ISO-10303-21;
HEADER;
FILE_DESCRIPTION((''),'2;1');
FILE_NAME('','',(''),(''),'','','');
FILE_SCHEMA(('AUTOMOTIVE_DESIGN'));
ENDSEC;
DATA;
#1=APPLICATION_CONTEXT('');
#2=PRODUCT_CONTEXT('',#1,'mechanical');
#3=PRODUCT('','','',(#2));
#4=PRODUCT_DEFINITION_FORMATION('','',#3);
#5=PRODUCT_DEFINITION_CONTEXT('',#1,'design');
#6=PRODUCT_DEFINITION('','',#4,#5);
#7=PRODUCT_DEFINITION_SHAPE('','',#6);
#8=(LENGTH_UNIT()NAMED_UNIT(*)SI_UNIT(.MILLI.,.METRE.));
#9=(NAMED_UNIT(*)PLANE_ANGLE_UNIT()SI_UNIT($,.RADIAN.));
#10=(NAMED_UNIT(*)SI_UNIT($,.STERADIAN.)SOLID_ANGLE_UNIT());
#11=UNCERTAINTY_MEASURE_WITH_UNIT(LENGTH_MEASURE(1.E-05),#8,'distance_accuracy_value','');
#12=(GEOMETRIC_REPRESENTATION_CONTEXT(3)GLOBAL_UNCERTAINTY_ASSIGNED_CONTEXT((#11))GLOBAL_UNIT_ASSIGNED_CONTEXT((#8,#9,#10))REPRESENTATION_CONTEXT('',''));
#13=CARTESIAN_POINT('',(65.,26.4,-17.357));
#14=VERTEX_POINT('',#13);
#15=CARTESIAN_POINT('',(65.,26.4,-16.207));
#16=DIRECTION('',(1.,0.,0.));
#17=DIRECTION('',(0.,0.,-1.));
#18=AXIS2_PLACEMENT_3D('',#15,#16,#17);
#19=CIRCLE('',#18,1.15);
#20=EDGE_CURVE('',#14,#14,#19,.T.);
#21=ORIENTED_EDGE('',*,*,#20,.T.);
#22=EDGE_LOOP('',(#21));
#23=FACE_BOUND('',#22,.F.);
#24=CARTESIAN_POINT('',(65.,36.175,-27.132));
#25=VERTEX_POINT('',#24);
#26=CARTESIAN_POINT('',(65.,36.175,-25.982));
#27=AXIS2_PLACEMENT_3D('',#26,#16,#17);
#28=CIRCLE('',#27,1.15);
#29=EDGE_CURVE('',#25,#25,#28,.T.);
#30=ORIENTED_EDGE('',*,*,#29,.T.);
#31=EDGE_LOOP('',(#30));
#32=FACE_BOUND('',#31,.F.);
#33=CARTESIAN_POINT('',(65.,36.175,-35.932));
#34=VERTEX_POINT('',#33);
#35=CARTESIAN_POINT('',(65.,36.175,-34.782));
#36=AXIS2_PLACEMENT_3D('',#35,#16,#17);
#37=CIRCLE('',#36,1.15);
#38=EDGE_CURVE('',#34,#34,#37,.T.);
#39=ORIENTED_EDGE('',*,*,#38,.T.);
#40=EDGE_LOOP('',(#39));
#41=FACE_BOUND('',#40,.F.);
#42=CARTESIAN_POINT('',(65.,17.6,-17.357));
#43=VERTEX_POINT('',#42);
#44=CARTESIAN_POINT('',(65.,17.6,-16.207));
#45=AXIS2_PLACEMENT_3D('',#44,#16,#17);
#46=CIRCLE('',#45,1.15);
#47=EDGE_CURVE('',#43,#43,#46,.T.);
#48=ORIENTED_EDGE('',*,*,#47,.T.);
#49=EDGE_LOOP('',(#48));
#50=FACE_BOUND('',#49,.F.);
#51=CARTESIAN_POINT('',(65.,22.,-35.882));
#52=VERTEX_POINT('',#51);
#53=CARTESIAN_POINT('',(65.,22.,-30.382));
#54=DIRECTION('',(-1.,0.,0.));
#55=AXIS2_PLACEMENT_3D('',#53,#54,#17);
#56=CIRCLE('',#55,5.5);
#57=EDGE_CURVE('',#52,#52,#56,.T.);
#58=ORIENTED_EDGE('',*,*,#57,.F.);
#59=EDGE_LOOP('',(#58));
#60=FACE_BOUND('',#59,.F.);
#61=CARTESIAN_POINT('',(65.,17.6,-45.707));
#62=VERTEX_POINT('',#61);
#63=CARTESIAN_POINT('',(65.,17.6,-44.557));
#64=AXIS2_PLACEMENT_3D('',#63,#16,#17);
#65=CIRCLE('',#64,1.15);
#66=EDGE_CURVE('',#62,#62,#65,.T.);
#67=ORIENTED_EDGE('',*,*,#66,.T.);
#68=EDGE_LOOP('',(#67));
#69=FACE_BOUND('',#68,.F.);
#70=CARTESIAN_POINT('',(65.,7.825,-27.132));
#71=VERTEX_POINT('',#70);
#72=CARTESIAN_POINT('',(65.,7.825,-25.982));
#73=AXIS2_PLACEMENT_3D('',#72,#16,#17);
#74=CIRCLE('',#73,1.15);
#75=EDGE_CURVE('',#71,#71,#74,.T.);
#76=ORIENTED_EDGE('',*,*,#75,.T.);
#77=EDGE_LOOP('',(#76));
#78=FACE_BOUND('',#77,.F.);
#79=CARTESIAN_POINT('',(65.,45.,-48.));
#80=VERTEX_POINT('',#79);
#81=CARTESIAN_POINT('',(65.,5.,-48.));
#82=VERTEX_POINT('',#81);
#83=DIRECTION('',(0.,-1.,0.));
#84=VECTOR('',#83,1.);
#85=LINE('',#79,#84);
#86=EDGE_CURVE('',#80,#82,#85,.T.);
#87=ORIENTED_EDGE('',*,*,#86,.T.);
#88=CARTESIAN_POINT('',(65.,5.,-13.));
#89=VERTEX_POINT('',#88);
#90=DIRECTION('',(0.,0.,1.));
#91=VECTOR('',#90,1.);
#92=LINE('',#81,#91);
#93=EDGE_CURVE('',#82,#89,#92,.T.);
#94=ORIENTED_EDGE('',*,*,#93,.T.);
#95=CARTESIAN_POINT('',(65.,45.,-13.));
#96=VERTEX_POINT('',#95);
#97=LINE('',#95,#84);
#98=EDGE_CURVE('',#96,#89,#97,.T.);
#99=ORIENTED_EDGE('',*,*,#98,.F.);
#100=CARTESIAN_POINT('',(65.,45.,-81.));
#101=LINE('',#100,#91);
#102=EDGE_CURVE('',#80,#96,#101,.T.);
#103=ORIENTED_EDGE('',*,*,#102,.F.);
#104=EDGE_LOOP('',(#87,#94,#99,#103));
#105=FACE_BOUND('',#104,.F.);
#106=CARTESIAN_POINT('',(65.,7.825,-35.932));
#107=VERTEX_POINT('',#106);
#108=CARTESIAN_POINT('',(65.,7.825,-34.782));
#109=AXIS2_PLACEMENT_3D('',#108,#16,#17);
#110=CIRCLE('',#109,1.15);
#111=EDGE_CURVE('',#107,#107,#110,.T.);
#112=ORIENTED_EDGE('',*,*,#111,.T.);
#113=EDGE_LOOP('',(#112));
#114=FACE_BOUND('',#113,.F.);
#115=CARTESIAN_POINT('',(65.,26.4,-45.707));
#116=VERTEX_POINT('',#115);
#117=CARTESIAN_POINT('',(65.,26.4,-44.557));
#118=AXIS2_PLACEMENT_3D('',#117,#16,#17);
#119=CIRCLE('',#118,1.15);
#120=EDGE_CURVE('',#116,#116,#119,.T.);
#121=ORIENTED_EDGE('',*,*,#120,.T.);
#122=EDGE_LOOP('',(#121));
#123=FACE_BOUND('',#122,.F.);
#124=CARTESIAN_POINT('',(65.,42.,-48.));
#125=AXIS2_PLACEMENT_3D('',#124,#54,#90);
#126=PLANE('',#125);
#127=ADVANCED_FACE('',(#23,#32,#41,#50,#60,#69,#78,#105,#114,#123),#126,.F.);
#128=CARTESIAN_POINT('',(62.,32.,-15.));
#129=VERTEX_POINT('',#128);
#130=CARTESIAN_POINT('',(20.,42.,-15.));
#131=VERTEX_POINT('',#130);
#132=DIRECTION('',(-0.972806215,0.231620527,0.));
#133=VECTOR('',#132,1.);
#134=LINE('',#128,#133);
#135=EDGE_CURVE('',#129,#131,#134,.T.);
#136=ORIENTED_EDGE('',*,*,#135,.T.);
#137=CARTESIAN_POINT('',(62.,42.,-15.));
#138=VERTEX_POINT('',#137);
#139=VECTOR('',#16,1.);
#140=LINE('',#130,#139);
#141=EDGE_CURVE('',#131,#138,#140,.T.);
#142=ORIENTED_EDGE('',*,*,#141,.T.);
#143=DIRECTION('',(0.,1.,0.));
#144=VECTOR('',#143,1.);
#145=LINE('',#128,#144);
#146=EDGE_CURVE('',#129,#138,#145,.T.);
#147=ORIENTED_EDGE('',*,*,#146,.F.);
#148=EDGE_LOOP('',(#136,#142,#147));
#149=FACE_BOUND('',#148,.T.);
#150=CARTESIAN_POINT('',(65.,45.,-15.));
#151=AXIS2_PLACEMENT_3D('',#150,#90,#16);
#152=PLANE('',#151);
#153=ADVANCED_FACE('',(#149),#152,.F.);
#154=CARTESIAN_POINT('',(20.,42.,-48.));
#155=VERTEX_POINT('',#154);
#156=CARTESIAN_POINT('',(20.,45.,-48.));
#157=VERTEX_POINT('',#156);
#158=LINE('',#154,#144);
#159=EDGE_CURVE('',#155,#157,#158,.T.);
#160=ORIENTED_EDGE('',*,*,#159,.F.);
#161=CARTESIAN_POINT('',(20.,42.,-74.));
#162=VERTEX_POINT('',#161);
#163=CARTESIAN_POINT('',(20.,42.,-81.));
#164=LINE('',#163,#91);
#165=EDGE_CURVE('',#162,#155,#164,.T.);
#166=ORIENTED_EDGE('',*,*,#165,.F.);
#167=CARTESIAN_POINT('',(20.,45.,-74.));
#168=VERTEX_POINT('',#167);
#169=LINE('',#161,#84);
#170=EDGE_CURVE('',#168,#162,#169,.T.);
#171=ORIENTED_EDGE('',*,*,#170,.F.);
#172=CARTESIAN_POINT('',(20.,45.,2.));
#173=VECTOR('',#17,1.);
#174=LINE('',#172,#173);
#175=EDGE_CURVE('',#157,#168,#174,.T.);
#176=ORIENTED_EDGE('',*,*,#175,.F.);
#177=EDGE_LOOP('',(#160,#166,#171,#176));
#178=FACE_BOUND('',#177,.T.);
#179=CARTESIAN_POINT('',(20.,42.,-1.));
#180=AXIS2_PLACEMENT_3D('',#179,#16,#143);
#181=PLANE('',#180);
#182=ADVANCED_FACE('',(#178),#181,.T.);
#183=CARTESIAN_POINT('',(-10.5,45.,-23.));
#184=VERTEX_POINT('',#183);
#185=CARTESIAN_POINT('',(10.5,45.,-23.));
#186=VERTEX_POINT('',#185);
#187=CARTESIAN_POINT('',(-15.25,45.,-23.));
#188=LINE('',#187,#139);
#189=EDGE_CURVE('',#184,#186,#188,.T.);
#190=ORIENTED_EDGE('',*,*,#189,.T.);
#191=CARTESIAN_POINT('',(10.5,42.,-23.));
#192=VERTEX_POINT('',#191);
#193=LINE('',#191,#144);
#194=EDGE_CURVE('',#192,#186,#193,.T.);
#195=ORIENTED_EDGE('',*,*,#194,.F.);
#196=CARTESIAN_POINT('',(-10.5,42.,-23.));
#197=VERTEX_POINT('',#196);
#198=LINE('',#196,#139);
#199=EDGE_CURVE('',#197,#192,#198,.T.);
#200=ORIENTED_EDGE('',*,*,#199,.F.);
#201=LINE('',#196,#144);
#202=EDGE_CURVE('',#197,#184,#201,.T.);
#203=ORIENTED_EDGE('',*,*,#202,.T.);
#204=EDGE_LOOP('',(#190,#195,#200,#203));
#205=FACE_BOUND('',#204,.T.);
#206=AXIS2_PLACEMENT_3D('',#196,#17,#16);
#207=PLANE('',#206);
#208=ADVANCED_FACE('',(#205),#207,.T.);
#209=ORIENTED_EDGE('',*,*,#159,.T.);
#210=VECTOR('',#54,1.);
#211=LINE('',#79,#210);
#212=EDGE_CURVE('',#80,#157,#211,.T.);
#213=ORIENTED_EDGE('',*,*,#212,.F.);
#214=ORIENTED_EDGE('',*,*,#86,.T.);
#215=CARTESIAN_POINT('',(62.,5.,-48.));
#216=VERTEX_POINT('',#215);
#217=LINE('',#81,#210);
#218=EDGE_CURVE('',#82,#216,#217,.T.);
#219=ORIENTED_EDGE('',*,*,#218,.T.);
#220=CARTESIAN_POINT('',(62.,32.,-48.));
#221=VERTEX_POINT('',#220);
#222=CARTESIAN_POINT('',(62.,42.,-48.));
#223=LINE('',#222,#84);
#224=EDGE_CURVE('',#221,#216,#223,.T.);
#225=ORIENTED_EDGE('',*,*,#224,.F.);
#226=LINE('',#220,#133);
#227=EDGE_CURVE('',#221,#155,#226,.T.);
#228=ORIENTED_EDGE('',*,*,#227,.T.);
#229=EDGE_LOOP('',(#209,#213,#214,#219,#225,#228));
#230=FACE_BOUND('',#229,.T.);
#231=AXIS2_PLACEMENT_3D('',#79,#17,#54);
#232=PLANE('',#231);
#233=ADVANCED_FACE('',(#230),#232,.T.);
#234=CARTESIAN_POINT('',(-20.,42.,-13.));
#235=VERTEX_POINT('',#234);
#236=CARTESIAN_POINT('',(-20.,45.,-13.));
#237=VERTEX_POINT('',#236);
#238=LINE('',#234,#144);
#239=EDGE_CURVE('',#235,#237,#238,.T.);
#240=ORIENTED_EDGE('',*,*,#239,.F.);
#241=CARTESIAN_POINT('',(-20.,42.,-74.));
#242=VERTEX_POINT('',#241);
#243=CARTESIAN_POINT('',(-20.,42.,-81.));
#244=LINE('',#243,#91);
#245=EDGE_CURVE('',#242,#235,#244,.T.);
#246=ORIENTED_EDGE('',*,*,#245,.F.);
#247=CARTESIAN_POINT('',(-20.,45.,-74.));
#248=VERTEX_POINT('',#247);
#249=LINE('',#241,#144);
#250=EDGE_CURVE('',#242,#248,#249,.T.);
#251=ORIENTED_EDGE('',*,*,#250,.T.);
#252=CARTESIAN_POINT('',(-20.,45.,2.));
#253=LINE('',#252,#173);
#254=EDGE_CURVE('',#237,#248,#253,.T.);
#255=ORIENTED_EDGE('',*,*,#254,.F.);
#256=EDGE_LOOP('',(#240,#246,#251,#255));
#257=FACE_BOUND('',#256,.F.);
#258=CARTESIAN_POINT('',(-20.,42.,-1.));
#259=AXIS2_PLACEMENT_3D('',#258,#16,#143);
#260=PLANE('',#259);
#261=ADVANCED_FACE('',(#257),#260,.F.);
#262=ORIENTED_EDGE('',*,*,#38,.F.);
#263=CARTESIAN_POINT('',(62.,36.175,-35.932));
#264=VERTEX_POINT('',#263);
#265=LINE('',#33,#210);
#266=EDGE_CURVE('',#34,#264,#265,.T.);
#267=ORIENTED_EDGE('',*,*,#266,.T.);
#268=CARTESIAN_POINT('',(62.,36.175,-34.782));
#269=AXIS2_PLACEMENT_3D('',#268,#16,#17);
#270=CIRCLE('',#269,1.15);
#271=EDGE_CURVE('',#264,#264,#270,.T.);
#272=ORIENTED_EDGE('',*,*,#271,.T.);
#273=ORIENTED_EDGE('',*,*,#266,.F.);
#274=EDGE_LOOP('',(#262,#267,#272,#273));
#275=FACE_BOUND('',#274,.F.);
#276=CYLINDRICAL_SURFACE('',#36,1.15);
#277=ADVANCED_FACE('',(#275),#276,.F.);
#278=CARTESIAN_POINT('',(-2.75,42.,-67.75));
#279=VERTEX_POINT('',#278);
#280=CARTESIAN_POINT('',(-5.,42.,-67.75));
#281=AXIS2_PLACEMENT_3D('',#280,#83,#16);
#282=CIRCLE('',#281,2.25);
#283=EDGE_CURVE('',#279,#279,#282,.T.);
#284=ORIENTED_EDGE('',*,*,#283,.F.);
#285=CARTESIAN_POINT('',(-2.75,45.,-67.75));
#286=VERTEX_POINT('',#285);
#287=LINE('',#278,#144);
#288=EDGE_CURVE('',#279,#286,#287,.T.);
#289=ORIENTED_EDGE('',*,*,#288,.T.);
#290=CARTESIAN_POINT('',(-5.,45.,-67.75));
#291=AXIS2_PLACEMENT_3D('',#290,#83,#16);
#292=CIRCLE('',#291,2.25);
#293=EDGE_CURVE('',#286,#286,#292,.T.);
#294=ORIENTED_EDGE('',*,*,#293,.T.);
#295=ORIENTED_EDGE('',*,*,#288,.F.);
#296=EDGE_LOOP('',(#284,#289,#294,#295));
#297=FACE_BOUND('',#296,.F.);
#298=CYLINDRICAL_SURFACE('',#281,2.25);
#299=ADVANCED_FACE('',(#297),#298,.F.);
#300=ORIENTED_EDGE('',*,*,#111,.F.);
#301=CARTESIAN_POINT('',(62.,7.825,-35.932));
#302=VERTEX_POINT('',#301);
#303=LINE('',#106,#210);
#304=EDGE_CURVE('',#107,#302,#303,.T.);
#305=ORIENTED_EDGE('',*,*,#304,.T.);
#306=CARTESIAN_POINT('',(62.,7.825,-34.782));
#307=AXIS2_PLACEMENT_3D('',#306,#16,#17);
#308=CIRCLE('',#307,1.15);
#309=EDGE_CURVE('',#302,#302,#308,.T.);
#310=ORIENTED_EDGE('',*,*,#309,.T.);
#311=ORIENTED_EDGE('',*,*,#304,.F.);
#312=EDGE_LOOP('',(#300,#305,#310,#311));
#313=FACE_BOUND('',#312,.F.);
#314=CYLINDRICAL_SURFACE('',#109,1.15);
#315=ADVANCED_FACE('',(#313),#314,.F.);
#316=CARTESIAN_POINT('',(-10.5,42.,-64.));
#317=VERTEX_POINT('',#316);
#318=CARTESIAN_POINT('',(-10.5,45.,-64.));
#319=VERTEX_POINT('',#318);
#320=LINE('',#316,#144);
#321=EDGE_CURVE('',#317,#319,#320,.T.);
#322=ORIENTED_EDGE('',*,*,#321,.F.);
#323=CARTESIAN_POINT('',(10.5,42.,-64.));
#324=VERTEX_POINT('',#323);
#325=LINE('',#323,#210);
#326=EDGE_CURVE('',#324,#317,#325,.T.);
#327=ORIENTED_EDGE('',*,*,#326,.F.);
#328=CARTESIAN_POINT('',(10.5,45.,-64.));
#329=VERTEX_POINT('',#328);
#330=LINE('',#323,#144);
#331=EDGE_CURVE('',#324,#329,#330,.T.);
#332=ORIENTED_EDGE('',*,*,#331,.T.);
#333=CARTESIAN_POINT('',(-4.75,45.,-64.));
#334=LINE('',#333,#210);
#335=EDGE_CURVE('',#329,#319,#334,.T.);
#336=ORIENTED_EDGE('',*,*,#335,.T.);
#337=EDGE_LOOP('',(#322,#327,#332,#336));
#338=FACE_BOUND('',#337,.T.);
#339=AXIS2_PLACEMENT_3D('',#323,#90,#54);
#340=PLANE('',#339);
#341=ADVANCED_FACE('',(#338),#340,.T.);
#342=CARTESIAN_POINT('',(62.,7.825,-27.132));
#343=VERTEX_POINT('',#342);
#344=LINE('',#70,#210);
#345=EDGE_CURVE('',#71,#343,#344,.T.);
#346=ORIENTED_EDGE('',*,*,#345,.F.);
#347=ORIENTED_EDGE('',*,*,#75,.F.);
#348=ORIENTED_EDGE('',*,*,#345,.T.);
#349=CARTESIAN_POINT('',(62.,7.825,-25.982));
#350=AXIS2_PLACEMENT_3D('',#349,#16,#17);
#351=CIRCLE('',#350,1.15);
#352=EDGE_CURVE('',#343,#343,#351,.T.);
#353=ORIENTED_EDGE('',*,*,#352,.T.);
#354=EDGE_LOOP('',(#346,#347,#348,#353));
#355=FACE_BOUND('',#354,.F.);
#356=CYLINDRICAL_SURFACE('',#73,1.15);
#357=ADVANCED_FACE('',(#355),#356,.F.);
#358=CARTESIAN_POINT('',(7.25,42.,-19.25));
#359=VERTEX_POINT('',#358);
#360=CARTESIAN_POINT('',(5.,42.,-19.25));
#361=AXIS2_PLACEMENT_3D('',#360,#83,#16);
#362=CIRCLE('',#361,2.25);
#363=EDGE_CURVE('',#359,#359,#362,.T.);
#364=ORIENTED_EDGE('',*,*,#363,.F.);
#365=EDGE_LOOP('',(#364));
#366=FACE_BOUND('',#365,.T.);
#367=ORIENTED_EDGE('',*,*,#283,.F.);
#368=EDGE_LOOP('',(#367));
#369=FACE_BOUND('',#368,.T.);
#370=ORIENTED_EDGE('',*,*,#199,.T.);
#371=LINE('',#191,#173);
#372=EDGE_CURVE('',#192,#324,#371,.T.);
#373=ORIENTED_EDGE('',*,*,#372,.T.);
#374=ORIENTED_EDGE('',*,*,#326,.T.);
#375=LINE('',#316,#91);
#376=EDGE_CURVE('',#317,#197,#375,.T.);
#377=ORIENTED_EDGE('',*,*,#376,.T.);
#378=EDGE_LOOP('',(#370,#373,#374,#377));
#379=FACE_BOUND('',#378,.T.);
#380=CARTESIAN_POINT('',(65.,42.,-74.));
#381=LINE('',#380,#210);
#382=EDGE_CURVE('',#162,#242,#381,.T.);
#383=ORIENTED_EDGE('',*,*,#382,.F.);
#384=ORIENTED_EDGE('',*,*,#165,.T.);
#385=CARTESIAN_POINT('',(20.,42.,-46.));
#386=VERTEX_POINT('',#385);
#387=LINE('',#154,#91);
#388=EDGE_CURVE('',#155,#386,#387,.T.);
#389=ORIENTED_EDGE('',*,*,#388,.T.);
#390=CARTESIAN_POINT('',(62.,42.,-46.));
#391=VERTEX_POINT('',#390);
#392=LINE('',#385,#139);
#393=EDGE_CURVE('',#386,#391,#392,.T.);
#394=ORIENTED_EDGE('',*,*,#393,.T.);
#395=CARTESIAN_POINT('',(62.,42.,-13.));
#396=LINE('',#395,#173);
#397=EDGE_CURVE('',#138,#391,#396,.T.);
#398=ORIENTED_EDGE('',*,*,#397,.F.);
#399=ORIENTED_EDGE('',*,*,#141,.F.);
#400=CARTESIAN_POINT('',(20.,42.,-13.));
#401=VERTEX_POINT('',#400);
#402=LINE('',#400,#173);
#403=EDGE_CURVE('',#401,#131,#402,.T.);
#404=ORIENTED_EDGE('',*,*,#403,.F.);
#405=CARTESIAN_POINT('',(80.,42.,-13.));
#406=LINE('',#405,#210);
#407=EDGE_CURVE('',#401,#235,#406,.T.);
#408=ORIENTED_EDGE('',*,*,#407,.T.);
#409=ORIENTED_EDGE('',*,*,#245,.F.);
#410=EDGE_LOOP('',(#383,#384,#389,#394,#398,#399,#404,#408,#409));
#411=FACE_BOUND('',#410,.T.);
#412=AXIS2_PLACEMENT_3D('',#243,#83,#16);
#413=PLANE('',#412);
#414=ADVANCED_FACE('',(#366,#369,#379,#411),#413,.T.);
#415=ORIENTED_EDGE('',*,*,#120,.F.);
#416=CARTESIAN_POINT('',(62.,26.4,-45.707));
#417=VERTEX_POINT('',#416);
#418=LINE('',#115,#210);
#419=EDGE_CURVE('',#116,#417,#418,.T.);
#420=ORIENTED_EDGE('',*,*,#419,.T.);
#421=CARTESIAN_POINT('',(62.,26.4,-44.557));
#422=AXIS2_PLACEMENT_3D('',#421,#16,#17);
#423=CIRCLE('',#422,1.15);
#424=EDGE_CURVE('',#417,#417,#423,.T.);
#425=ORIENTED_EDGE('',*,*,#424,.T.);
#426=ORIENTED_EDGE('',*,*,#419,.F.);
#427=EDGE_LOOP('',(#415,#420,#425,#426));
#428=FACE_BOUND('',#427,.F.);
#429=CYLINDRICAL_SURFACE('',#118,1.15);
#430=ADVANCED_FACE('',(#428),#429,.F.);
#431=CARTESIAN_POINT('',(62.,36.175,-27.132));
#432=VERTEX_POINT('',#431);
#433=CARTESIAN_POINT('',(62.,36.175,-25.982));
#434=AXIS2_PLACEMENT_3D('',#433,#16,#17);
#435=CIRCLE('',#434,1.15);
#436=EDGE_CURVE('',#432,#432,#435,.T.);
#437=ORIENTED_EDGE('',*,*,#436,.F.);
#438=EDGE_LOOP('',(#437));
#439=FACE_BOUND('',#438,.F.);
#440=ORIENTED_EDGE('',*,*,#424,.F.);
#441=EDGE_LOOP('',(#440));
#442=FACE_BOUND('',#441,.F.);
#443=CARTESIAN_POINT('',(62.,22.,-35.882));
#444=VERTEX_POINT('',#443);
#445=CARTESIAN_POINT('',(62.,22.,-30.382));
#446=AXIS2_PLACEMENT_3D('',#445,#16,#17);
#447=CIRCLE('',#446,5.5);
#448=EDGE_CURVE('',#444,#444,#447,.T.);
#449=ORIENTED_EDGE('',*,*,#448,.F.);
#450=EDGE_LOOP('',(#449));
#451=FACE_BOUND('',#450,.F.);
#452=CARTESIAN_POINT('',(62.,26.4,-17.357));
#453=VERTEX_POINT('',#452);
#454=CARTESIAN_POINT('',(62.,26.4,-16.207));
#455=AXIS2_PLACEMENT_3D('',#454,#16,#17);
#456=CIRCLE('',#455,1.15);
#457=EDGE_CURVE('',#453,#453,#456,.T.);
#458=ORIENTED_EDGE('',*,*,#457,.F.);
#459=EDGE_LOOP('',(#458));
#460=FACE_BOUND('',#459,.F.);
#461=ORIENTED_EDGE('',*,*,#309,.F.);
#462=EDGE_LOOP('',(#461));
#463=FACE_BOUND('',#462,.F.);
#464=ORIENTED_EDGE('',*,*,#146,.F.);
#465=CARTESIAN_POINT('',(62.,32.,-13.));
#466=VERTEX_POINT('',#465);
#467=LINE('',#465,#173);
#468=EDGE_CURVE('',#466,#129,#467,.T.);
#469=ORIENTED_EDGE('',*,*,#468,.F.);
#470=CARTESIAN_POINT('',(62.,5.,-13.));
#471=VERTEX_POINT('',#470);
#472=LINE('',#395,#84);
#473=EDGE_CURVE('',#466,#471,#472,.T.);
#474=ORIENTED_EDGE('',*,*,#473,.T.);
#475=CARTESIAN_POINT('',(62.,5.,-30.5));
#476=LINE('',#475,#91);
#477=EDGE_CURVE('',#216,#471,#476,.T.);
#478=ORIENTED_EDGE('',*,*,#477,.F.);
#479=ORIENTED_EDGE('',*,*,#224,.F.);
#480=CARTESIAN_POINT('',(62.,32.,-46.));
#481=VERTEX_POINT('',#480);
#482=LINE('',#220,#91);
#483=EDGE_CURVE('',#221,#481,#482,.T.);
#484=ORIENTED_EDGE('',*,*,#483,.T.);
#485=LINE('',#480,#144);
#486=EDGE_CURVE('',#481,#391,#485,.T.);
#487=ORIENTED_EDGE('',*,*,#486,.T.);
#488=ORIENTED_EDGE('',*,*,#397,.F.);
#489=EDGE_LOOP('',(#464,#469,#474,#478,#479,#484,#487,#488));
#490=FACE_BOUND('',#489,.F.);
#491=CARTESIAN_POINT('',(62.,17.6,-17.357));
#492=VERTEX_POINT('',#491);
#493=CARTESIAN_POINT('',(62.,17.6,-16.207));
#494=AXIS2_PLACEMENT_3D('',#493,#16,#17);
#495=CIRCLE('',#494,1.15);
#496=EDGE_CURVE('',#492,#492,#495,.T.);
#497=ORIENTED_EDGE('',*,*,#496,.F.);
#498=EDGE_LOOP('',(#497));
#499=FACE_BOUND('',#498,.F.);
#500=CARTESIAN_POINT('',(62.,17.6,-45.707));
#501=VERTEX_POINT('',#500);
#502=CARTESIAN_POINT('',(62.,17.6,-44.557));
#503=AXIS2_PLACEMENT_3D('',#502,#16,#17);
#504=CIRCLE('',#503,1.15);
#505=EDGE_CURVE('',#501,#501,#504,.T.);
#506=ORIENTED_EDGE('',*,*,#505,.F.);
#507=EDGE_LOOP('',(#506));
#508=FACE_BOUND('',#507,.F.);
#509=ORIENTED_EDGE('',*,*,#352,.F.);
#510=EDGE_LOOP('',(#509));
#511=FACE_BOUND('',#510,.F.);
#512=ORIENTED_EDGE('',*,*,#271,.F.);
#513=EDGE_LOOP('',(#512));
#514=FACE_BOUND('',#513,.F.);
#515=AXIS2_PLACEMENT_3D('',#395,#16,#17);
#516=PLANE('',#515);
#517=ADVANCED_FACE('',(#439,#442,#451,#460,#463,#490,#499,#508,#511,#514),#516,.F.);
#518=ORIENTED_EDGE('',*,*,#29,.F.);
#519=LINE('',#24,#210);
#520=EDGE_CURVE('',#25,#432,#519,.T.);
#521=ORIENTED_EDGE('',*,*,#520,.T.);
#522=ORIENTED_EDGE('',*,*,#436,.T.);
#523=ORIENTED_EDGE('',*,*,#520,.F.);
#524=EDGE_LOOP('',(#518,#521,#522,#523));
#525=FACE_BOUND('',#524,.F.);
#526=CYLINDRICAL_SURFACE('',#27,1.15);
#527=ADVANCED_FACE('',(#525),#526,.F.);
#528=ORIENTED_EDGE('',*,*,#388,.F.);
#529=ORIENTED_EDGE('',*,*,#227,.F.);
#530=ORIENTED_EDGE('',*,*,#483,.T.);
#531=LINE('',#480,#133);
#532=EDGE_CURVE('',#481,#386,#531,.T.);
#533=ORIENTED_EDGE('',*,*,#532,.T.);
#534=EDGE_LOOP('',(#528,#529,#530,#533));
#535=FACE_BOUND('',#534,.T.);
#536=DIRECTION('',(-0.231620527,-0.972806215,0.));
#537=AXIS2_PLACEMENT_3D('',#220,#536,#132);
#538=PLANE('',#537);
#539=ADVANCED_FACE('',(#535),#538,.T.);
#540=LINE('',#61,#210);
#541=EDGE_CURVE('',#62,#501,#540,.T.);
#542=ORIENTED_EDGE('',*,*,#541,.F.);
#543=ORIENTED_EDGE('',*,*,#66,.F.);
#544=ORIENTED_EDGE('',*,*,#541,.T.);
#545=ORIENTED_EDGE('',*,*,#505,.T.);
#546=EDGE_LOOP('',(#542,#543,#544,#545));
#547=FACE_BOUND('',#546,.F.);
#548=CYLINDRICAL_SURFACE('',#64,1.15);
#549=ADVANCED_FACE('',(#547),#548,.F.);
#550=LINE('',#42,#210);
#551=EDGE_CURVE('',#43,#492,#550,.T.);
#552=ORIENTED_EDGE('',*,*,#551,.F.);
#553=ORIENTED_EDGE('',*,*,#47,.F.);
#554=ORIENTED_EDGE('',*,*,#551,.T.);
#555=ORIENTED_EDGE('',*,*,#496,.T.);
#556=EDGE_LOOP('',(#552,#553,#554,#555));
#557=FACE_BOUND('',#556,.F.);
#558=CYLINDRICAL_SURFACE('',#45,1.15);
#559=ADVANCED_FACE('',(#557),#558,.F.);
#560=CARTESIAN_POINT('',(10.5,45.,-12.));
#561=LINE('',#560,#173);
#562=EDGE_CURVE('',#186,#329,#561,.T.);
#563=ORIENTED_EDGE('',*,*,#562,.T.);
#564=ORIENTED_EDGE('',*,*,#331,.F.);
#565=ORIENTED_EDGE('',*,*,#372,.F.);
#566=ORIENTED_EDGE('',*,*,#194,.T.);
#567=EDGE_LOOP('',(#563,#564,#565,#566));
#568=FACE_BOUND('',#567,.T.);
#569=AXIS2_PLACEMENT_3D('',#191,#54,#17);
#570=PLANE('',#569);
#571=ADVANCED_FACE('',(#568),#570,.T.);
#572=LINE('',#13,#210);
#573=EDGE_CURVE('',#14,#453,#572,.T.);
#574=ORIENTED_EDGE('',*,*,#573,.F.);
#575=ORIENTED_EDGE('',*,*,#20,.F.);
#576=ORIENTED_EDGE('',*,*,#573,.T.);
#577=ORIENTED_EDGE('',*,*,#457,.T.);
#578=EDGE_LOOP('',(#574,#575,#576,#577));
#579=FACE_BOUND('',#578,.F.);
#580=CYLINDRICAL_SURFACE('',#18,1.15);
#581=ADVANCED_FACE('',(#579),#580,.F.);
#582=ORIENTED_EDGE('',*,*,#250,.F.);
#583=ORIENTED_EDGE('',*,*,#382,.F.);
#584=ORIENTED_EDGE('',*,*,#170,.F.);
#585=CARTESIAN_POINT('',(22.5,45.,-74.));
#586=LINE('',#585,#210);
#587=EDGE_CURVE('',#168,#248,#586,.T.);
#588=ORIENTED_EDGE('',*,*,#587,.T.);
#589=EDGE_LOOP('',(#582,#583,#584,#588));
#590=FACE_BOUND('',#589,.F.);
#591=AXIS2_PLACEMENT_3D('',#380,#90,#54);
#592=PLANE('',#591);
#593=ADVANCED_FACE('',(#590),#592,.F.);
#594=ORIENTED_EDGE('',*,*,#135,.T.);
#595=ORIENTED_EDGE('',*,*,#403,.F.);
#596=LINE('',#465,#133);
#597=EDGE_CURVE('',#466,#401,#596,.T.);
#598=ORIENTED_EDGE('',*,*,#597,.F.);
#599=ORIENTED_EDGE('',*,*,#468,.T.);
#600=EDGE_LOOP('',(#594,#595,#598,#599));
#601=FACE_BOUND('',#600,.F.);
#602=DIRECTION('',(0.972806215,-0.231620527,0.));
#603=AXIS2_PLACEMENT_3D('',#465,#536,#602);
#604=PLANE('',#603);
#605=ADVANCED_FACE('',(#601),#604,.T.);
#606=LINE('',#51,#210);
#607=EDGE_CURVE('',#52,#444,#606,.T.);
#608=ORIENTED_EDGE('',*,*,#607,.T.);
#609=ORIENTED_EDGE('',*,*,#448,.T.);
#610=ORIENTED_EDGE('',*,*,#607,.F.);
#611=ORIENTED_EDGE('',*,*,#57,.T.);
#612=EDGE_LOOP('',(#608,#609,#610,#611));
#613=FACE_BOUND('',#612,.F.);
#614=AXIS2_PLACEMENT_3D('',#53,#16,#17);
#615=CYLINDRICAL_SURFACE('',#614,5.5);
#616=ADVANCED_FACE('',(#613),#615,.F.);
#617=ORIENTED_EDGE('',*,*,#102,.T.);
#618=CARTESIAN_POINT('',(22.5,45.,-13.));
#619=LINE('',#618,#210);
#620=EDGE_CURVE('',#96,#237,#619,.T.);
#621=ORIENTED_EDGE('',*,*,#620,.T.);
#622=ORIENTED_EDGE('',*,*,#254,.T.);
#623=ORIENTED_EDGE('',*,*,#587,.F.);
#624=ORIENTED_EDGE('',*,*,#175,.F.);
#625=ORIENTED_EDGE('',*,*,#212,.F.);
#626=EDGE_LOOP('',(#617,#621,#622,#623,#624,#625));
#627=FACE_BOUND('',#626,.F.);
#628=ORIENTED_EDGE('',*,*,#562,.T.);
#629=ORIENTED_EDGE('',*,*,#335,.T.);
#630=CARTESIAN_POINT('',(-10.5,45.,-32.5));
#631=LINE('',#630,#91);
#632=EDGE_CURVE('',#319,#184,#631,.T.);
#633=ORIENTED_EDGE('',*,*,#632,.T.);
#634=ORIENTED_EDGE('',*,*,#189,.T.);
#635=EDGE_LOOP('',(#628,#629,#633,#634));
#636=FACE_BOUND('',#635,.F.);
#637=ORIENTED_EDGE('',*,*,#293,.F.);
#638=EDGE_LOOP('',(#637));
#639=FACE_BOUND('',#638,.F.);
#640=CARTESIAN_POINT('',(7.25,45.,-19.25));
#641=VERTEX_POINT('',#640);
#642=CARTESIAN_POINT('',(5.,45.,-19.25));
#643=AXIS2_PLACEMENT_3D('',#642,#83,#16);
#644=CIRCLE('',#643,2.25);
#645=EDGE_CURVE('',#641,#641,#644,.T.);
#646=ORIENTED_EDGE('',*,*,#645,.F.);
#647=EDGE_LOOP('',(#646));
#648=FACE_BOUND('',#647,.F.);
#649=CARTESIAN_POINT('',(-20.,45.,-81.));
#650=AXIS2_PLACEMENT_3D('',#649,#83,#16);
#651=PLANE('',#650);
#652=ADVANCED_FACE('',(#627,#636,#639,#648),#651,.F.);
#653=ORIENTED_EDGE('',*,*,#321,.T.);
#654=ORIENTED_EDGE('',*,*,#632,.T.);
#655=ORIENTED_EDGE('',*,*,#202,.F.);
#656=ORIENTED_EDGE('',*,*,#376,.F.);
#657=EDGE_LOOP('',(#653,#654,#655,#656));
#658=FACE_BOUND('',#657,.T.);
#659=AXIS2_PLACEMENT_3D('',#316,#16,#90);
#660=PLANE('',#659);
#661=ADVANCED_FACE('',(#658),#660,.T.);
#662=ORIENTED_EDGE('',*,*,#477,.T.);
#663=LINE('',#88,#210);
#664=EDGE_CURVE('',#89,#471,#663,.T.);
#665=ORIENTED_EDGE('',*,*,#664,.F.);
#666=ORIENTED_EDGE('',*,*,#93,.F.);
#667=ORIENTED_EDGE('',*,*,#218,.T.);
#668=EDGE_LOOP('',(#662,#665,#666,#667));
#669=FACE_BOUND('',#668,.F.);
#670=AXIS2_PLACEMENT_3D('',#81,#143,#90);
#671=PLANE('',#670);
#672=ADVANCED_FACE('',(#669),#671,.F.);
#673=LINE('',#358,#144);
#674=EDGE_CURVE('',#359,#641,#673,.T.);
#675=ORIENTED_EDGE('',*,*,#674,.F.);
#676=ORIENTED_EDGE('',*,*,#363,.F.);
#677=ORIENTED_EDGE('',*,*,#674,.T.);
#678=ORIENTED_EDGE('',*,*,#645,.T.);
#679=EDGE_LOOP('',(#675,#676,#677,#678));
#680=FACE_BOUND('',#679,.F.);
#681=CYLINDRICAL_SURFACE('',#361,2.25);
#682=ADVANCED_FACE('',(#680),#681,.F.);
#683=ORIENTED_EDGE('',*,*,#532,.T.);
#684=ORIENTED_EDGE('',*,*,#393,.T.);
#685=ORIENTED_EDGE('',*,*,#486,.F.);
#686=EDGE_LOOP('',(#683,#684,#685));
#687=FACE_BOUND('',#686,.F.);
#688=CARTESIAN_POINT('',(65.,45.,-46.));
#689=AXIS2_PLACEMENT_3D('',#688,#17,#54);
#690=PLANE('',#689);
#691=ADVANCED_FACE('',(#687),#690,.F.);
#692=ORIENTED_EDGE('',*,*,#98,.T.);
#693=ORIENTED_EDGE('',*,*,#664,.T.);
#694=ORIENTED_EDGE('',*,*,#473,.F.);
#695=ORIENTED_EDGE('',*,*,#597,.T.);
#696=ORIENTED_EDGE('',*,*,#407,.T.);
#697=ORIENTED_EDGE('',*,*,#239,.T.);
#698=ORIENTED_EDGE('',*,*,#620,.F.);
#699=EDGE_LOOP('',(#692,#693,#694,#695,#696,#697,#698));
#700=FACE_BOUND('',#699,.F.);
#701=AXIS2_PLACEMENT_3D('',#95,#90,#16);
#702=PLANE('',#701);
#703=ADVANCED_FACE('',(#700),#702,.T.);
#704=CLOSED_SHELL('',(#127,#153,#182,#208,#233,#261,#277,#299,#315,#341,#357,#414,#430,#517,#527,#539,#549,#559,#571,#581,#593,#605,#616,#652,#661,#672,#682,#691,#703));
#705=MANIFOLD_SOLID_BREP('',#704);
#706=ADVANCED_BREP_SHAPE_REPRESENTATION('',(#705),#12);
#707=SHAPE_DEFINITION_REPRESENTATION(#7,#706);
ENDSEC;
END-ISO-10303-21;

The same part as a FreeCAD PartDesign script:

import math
import FreeCAD as App
import Part
import Sketcher
from FreeCAD import Vector
Q = App.Units.Quantity


def add_polygon(sketch, points):
    """Adds a closed chain of lines whose ends are joined by coincident constraints."""
    first, n = sketch.GeometryCount, len(points)
    for a, b in zip(points, points[1:] + points[:1]):
        sketch.addGeometry(Part.LineSegment(App.Vector(*a, 0), App.Vector(*b, 0)), False)
    for i in range(n):
        sketch.addConstraint(Sketcher.Constraint("Coincident", first + i, 2, first + (i + 1) % n, 1))

doc = App.newDocument("Part")
params = doc.addObject("Spreadsheet::Sheet", "Params")
for row, (alias, value) in enumerate([
    ("sketch1_width", "66 mm"),
    ("pad1_length", "2 mm"),
    ("sketch2_width", "62 mm"),
    ("pad2_length", "12 mm"),
    ("sketch3_width", "40 mm"),
    ("sketch3_height", "3 mm"),
    ("pad3_length", "12 mm"),
    ("sketch4_height", "3 mm"),
    ("sketch4_width", "40 mm"),
    ("pad4_length", "80 mm"),
    ("sketch5_width", "21 mm"),
    ("sketch5_height", "41 mm"),
    ("pocket1_length", "80 mm"),
    ("sketch6_diameter", "4.5 mm"),
    ("pocket2_length", "80 mm"),
    ("sketch7_width", "66 mm"),
    ("sketch7_height", "14 mm"),
    ("pocket3_length", "75 mm"),
    ("sketch8_width", "45 mm"),
    ("sketch8_height", "50 mm"),
    ("pad5_length", "3 mm"),
    ("sketch9_height", "15 mm"),
    ("sketch9_height2", "7 mm"),
    ("sketch9_width", "85 mm"),
    ("pocket4_length", "10 mm"),
    ("sketch10_width", "3 mm"),
    ("sketch10_height", "35 mm"),
    ("pad6_length", "100 mm"),
    ("sketch11_radius", "6.45 mm"),
    ("sketch11_radius2", "6.45 mm"),
    ("pocket5_length", "2.5 mm"),
    ("sketch12_width", "63 mm"),
    ("sketch12_height", "35 mm"),
    ("pocket6_length", "10 mm"),
    ("sketch13_width", "42 mm"),
    ("sketch13_height", "10 mm"),
    ("pad7_length", "2 mm"),
    ("sketch14_diameter", "2.3 mm"),
    ("pocket7_length", "10 mm"),
    ("sketch15_diameter", "2.3 mm"),
    ("pocket8_length", "10 mm"),
    ("sketch16_diameter", "2.3 mm"),
    ("pocket9_length", "10 mm"),
    ("sketch17_diameter", "11 mm"),
    ("pocket10_length", "10 mm"),
], start=1):
    params.set(f"A{row}", alias)
    params.set(f"B{row}", "=" + value)
    params.setAlias(f"B{row}", alias)

body = doc.addObject("PartDesign::Body", "Body")

sketch1 = body.newObject("Sketcher::SketchObject", "Sketch")
sketch1.AttachmentSupport = (doc.getObject("XY_Plane"), [""])
sketch1.MapMode = "FlatFace"
add_polygon(sketch1, [(33, 33), (-33, 33), (-33, -33), (33, -33)])
sketch1.addConstraint([
    Sketcher.Constraint("Horizontal", 0),
    Sketcher.Constraint("Vertical", 1),
    Sketcher.Constraint("Horizontal", 2),
    Sketcher.Constraint("Vertical", 3),
    Sketcher.Constraint("Symmetric", 0, 2, 2, 2, -1, 1),
    Sketcher.Constraint("Equal", 2, 1),
    Sketcher.Constraint("DistanceX", 0, 2, 0, 1, Q("66 mm")),
])
sketch1.setExpression("Constraints[10]", "Params.sketch1_width")
pad1 = body.newObject("PartDesign::Pad", "Pad")
pad1.Profile = sketch1
pad1.setExpression("Length", "Params.pad1_length")

sketch2 = body.newObject("Sketcher::SketchObject", "Sketch001")
sketch2.AttachmentSupport = (doc.getObject("XY_Plane"), [""])
sketch2.MapMode = "FlatFace"
add_polygon(sketch2, [(33, 33), (-33, 33), (-33, -33), (33, -33)])
add_polygon(sketch2, [(31, -31), (-31, -31), (-31, 31), (31, 31)])
sketch2.addConstraint([
    Sketcher.Constraint("Horizontal", 0),
    Sketcher.Constraint("Vertical", 1),
    Sketcher.Constraint("Horizontal", 2),
    Sketcher.Constraint("Vertical", 3),
    Sketcher.Constraint("Horizontal", 4),
    Sketcher.Constraint("Vertical", 5),
    Sketcher.Constraint("Horizontal", 6),
    Sketcher.Constraint("Vertical", 7),
    Sketcher.Constraint("Symmetric", 0, 2, 2, 2, -1, 1),
    Sketcher.Constraint("Symmetric", 4, 2, 6, 2, -1, 1),
    Sketcher.Constraint("Equal", 2, 1),
    Sketcher.Constraint("Equal", 6, 5),
    Sketcher.Constraint("DistanceX", 4, 2, 4, 1, Q("62 mm")),
    Sketcher.Constraint("DistanceX", 1, 2, 4, 2, Q("2 mm")),
])
sketch2.setExpression("Constraints[20]", "Params.sketch2_width")
pad2 = body.newObject("PartDesign::Pad", "Pad001")
pad2.Profile = sketch2
pad2.setExpression("Length", "Params.pad2_length")
pad2.Reversed = True

sketch3 = body.newObject("Sketcher::SketchObject", "Sketch002")
sketch3.AttachmentSupport = (doc.getObject("XZ_Plane"), [""])
sketch3.MapMode = "FlatFace"
sketch3.AttachmentOffset = App.Placement(Vector(0, 0, -33), App.Rotation())
add_polygon(sketch3, [(20, -1), (-20, -1), (-20, 2), (20, 2)])
sketch3.addConstraint([
    Sketcher.Constraint("Horizontal", 0),
    Sketcher.Constraint("Vertical", 1),
    Sketcher.Constraint("Horizontal", 2),
    Sketcher.Constraint("Vertical", 3),
    Sketcher.Constraint("DistanceX", 0, 2, 0, 1, Q("40 mm")),
    Sketcher.Constraint("DistanceY", 1, 1, 1, 2, Q("3 mm")),
    Sketcher.Constraint("DistanceX", 0, 2, -1, 1, Q("20 mm")),
    Sketcher.Constraint("DistanceY", 0, 2, -1, 1, Q("1 mm")),
])
sketch3.setExpression("Constraints[8]", "Params.sketch3_width")
sketch3.setExpression("Constraints[9]", "Params.sketch3_height")
pad3 = body.newObject("PartDesign::Pad", "Pad002")
pad3.Profile = sketch3
pad3.setExpression("Length", "Params.pad3_length")
pad3.Reversed = True

sketch4 = body.newObject("Sketcher::SketchObject", "Sketch003")
sketch4.AttachmentSupport = (doc.getObject("XY_Plane"), [""])
sketch4.MapMode = "FlatFace"
sketch4.AttachmentOffset = App.Placement(Vector(0, 0, -1), App.Rotation())
add_polygon(sketch4, [(-20, 42), (-20, 45), (20, 45), (20, 42)])
sketch4.addConstraint([
    Sketcher.Constraint("Vertical", 0),
    Sketcher.Constraint("Horizontal", 1),
    Sketcher.Constraint("Vertical", 2),
    Sketcher.Constraint("Horizontal", 3),
    Sketcher.Constraint("DistanceY", 0, 1, 0, 2, Q("3 mm")),
    Sketcher.Constraint("DistanceX", 1, 1, 1, 2, Q("40 mm")),
    Sketcher.Constraint("DistanceX", 0, 2, -1, 1, Q("20 mm")),
    Sketcher.Constraint("DistanceY", -1, 1, 0, 2, Q("45 mm")),
])
sketch4.setExpression("Constraints[8]", "Params.sketch4_height")
sketch4.setExpression("Constraints[9]", "Params.sketch4_width")
pad4 = body.newObject("PartDesign::Pad", "Pad003")
pad4.Profile = sketch4
pad4.setExpression("Length", "Params.pad4_length")
pad4.Reversed = True

sketch5 = body.newObject("Sketcher::SketchObject", "Sketch004")
sketch5.AttachmentSupport = (doc.getObject("XZ_Plane"), [""])
sketch5.MapMode = "FlatFace"
sketch5.AttachmentOffset = App.Placement(Vector(0, 0, -42), App.Rotation())
add_polygon(sketch5, [(-10.5, -64), (10.5, -64), (10.5, -23), (-10.5, -23)])
sketch5.addConstraint([
    Sketcher.Constraint("Horizontal", 0),
    Sketcher.Constraint("Vertical", 1),
    Sketcher.Constraint("Horizontal", 2),
    Sketcher.Constraint("Vertical", 3),
    Sketcher.Constraint("DistanceX", 0, 1, 0, 2, Q("21 mm")),
    Sketcher.Constraint("DistanceY", 1, 1, 1, 2, Q("41 mm")),
    Sketcher.Constraint("DistanceY", 0, 2, -1, 1, Q("64 mm")),
    Sketcher.Constraint("DistanceX", -1, 1, 0, 2, Q("10.5 mm")),
])
sketch5.setExpression("Constraints[8]", "Params.sketch5_width")
sketch5.setExpression("Constraints[9]", "Params.sketch5_height")
pocket1 = body.newObject("PartDesign::Pocket", "Pocket")
pocket1.Profile = sketch5
pocket1.setExpression("Length", "Params.pocket1_length")

sketch6 = body.newObject("Sketcher::SketchObject", "Sketch005")
sketch6.AttachmentSupport = (doc.getObject("XZ_Plane"), [""])
sketch6.MapMode = "FlatFace"
sketch6.AttachmentOffset = App.Placement(Vector(0, 0, -42), App.Rotation())
sketch6.addGeometry([
    Part.Circle(Vector(-5, -67.75, 0), Vector(0, 0, 1), 2.25),
    Part.Circle(Vector(5, -19.25, 0), Vector(0, 0, 1), 2.25),
], False)
sketch6.addConstraint([
    Sketcher.Constraint("Equal", 0, 1),
    Sketcher.Constraint("Diameter", 0, Q("4.5 mm")),
    Sketcher.Constraint("DistanceX", 0, 3, -1, 1, Q("5 mm")),
    Sketcher.Constraint("DistanceX", -1, 1, 1, 3, Q("5 mm")),
    Sketcher.Constraint("DistanceY", 0, 3, 1, 3, Q("48.5 mm")),
    Sketcher.Constraint("DistanceY", 0, 3, -1, 1, Q("67.75 mm")),
])
sketch6.setExpression("Constraints[1]", "Params.sketch6_diameter")
pocket2 = body.newObject("PartDesign::Pocket", "Pocket001")
pocket2.Profile = sketch6
pocket2.setExpression("Length", "Params.pocket2_length")

sketch7 = body.newObject("Sketcher::SketchObject", "Sketch006")
sketch7.AttachmentSupport = (doc.getObject("XZ_Plane"), [""])
sketch7.MapMode = "FlatFace"
sketch7.AttachmentOffset = App.Placement(Vector(0, 0, 33), App.Rotation())
add_polygon(sketch7, [(33, 2), (-33, 2), (-33, -12), (33, -12)])
sketch7.addConstraint([
    Sketcher.Constraint("Horizontal", 0),
    Sketcher.Constraint("Vertical", 1),
    Sketcher.Constraint("Horizontal", 2),
    Sketcher.Constraint("Vertical", 3),
    Sketcher.Constraint("DistanceX", 0, 2, 0, 1, Q("66 mm")),
    Sketcher.Constraint("DistanceY", 1, 2, 1, 1, Q("14 mm")),
    Sketcher.Constraint("DistanceX", 0, 2, -1, 1, Q("33 mm")),
    Sketcher.Constraint("DistanceY", -1, 1, 0, 2, Q("2 mm")),
])
sketch7.setExpression("Constraints[8]", "Params.sketch7_width")
sketch7.setExpression("Constraints[9]", "Params.sketch7_height")
pocket3 = body.newObject("PartDesign::Pocket", "Pocket002")
pocket3.Profile = sketch7
pocket3.setExpression("Length", "Params.pocket3_length")

sketch8 = body.newObject("Sketcher::SketchObject", "Sketch007")
sketch8.AttachmentSupport = (doc.getObject("XZ_Plane"), [""])
sketch8.MapMode = "FlatFace"
sketch8.AttachmentOffset = App.Placement(Vector(0, 0, -42), App.Rotation())
add_polygon(sketch8, [(65, 2), (20, 2), (20, -48), (65, -48)])
sketch8.addConstraint([
    Sketcher.Constraint("Horizontal", 0),
    Sketcher.Constraint("Vertical", 1),
    Sketcher.Constraint("Horizontal", 2),
    Sketcher.Constraint("Vertical", 3),
    Sketcher.Constraint("DistanceX", 0, 2, 0, 1, Q("45 mm")),
    Sketcher.Constraint("DistanceY", 1, 2, 1, 1, Q("50 mm")),
    Sketcher.Constraint("DistanceX", -1, 1, 0, 2, Q("20 mm")),
    Sketcher.Constraint("DistanceY", -1, 1, 0, 2, Q("2 mm")),
])
sketch8.setExpression("Constraints[8]", "Params.sketch8_width")
sketch8.setExpression("Constraints[9]", "Params.sketch8_height")
pad5 = body.newObject("PartDesign::Pad", "Pad004")
pad5.Profile = sketch8
pad5.setExpression("Length", "Params.pad5_length")
pad5.Reversed = True

sketch9 = body.newObject("Sketcher::SketchObject", "Sketch008")
sketch9.AttachmentSupport = (doc.getObject("XZ_Plane"), [""])
sketch9.MapMode = "FlatFace"
sketch9.AttachmentOffset = App.Placement(Vector(0, 0, -42), App.Rotation())
add_polygon(sketch9, [(-20, 2), (-20, -13), (65, -13), (65, 2)])
add_polygon(sketch9, [(65, -74), (-20, -74), (-20, -81), (65, -81)])
sketch9.addConstraint([
    Sketcher.Constraint("Vertical", 0),
    Sketcher.Constraint("Horizontal", 1),
    Sketcher.Constraint("Vertical", 2),
    Sketcher.Constraint("Horizontal", 3),
    Sketcher.Constraint("Horizontal", 4),
    Sketcher.Constraint("Vertical", 5),
    Sketcher.Constraint("Horizontal", 6),
    Sketcher.Constraint("Vertical", 7),
    Sketcher.Constraint("Vertical", 3, 2, 4, 2),
    Sketcher.Constraint("Vertical", 2, 2, 6, 2),
    Sketcher.Constraint("DistanceY", 0, 2, 0, 1, Q("15 mm")),
    Sketcher.Constraint("DistanceY", 5, 2, 5, 1, Q("7 mm")),
    Sketcher.Constraint("DistanceY", 5, 2, 3, 2, Q("83 mm")),
    Sketcher.Constraint("DistanceX", 1, 1, 1, 2, Q("85 mm")),
    Sketcher.Constraint("DistanceX", 0, 2, -1, 1, Q("20 mm")),
    Sketcher.Constraint("DistanceY", 0, 2, -1, 1, Q("13 mm")),
])
sketch9.setExpression("Constraints[18]", "Params.sketch9_height")
sketch9.setExpression("Constraints[19]", "Params.sketch9_height2")
sketch9.setExpression("Constraints[21]", "Params.sketch9_width")
pocket4 = body.newObject("PartDesign::Pocket", "Pocket003")
pocket4.Profile = sketch9
pocket4.setExpression("Length", "Params.pocket4_length")

sketch10 = body.newObject("Sketcher::SketchObject", "Sketch009")
sketch10.AttachmentSupport = (doc.getObject("XZ_Plane"), [""])
sketch10.MapMode = "FlatFace"
sketch10.AttachmentOffset = App.Placement(Vector(0, 0, -42), App.Rotation())
add_polygon(sketch10, [(62, -48), (65, -48), (65, -13), (62, -13)])
sketch10.addConstraint([
    Sketcher.Constraint("Horizontal", 0),
    Sketcher.Constraint("Vertical", 1),
    Sketcher.Constraint("Horizontal", 2),
    Sketcher.Constraint("Vertical", 3),
    Sketcher.Constraint("DistanceX", 0, 1, 0, 2, Q("3 mm")),
    Sketcher.Constraint("DistanceY", 1, 1, 1, 2, Q("35 mm")),
    Sketcher.Constraint("DistanceX", -1, 1, 0, 2, Q("65 mm")),
    Sketcher.Constraint("DistanceY", 0, 2, -1, 1, Q("48 mm")),
])
sketch10.setExpression("Constraints[8]", "Params.sketch10_width")
sketch10.setExpression("Constraints[9]", "Params.sketch10_height")
pad6 = body.newObject("PartDesign::Pad", "Pad005")
pad6.Profile = sketch10
pad6.setExpression("Length", "Params.pad6_length")

sketch11 = body.newObject("Sketcher::SketchObject", "Sketch010")
sketch11.AttachmentSupport = (doc.getObject("YZ_Plane"), [""])
sketch11.MapMode = "FlatFace"
sketch11.AttachmentOffset = App.Placement(Vector(0, 0, 65), App.Rotation())
sketch11.addGeometry([
    Part.ArcOfCircle(Part.Circle(Vector(-11.25, -31, 0), Vector(0, 0, 1), 2.125), math.radians(-80.038564), math.radians(80.128534)),
    Part.LineSegment(Vector(-10.8857, -28.9065, 0), Vector(-25.0643, -26.439, 0)),
    Part.ArcOfCircle(Part.Circle(Vector(-29.625, -31, 0), Vector(0, 0, 1), 6.45), math.radians(45.001884), math.radians(134.645106)),
    Part.LineSegment(Vector(-34.1575, -26.411, 0), Vector(-48.2317, -28.8877, 0)),
    Part.ArcOfCircle(Part.Circle(Vector(-48, -31, 0), Vector(0, 0, 1), 2.125), math.radians(96.259797), math.radians(260.128534)),
    Part.LineSegment(Vector(-48.3643, -33.0935, 0), Vector(-34.1857, -35.561, 0)),
    Part.ArcOfCircle(Part.Circle(Vector(-29.625, -31, 0), Vector(0, 0, 1), 6.45), math.radians(-134.998116), math.radians(-45.354894)),
    Part.LineSegment(Vector(-25.0925, -35.589, 0), Vector(-10.8824, -33.093, 0)),
], False)
sketch11.addConstraint([
    Sketcher.Constraint("Coincident", 0, 2, 1, 1),
    Sketcher.Constraint("Coincident", 1, 2, 2, 1),
    Sketcher.Constraint("Coincident", 2, 2, 3, 1),
    Sketcher.Constraint("Coincident", 3, 2, 4, 1),
    Sketcher.Constraint("Coincident", 4, 2, 5, 1),
    Sketcher.Constraint("Coincident", 5, 2, 6, 1),
    Sketcher.Constraint("Coincident", 6, 2, 7, 1),
    Sketcher.Constraint("Coincident", 7, 2, 0, 1),
    Sketcher.Constraint("Coincident", 6, 3, 2, 3),
    Sketcher.Constraint("Radius", 2, Q("6.45 mm")),
    Sketcher.Constraint("Radius", 6, Q("6.45 mm")),
    Sketcher.Constraint("Radius", 0, Q("2.125 mm")),
    Sketcher.Constraint("Radius", 4, Q("2.125 mm")),
    Sketcher.Constraint("DistanceY", 5, 2, 2, 2, Q("9.15 mm")),
    Sketcher.Constraint("DistanceY", 6, 2, 1, 2, Q("9.15 mm")),
    Sketcher.Constraint("DistanceY", 0, 3, -1, 1, Q("31 mm")),
    Sketcher.Constraint("DistanceY", 2, 3, -1, 1, Q("31 mm")),
    Sketcher.Constraint("DistanceX", 4, 3, -1, 1, Q("48 mm")),
    Sketcher.Constraint("DistanceY", 4, 3, -1, 1, Q("31 mm")),
    Sketcher.Constraint("DistanceX", 0, 3, -1, 1, Q("11.25 mm")),
    Sketcher.Constraint("DistanceX", 6, 2, 7, 2, Q("14.21 mm")),
    Sketcher.Constraint("DistanceX", 2, 3, -1, 1, Q("29.625 mm")),
    Sketcher.Constraint("DistanceY", 1, 2, -1, 1, Q("26.439 mm")),
    Sketcher.Constraint("DistanceY", 2, 2, -1, 1, Q("26.411 mm")),
    Sketcher.Constraint("Distance", 1, Q("14.3917 mm")),
    Sketcher.Constraint("Distance", 3, Q("14.2905 mm")),
    Sketcher.Constraint("Distance", 5, Q("14.3917 mm")),
])
sketch11.setExpression("Constraints[9]", "Params.sketch11_radius")
sketch11.setExpression("Constraints[10]", "Params.sketch11_radius2")
pocket5 = body.newObject("PartDesign::Pocket", "Pocket004")
pocket5.Profile = sketch11
pocket5.setExpression("Length", "Params.pocket5_length")

sketch12 = body.newObject("Sketcher::SketchObject", "Sketch011")
sketch12.AttachmentSupport = (doc.getObject("YZ_Plane"), [""])
sketch12.MapMode = "FlatFace"
sketch12.AttachmentOffset = App.Placement(Vector(0, 0, 65), App.Rotation())
add_polygon(sketch12, [(-58, -48), (5, -48), (5, -13), (-58, -13)])
sketch12.addConstraint([
    Sketcher.Constraint("Horizontal", 0),
    Sketcher.Constraint("Vertical", 1),
    Sketcher.Constraint("Horizontal", 2),
    Sketcher.Constraint("Vertical", 3),
    Sketcher.Constraint("DistanceX", 0, 1, 0, 2, Q("63 mm")),
    Sketcher.Constraint("DistanceY", 1, 1, 1, 2, Q("35 mm")),
    Sketcher.Constraint("DistanceX", -1, 1, 0, 2, Q("5 mm")),
    Sketcher.Constraint("DistanceY", 0, 2, -1, 1, Q("48 mm")),
])
sketch12.setExpression("Constraints[8]", "Params.sketch12_width")
sketch12.setExpression("Constraints[9]", "Params.sketch12_height")
pocket6 = body.newObject("PartDesign::Pocket", "Pocket005")
pocket6.Profile = sketch12
pocket6.setExpression("Length", "Params.pocket6_length")

sketch13 = body.newObject("Sketcher::SketchObject", "Sketch012")
sketch13.AttachmentSupport = (doc.getObject("XY_Plane"), [""])
sketch13.MapMode = "FlatFace"
sketch13.AttachmentOffset = App.Placement(Vector(0, 0, -48), App.Rotation())
add_polygon(sketch13, [(62, 32), (20, 42), (62, 42)])
sketch13.addConstraint([
    Sketcher.Constraint("Horizontal", 1),
    Sketcher.Constraint("Vertical", 2),
    Sketcher.Constraint("DistanceX", 1, 1, 1, 2, Q("42 mm")),
    Sketcher.Constraint("DistanceY", 2, 2, 2, 1, Q("10 mm")),
    Sketcher.Constraint("DistanceY", -1, 1, 0, 2, Q("42 mm")),
    Sketcher.Constraint("DistanceX", -1, 1, 0, 2, Q("20 mm")),
])
sketch13.setExpression("Constraints[5]", "Params.sketch13_width")
sketch13.setExpression("Constraints[6]", "Params.sketch13_height")
pad7 = body.newObject("PartDesign::Pad", "Pad006")
pad7.Profile = sketch13
pad7.setExpression("Length", "Params.pad7_length")
doc.recompute()

datumplane = body.newObject("PartDesign::Plane", "DatumPlane")
datumplane.AttachmentSupport = (doc.getObject("XY_Plane"), [""])
datumplane.MapMode = "FlatFace"
datumplane.AttachmentOffset = App.Placement(Vector(0, 0, -30.5), App.Rotation())
mirrored = body.newObject("PartDesign::Mirrored", "Mirrored")
mirrored.Originals = [pad7]
mirrored.MirrorPlane = (datumplane, [""])
body.Tip = mirrored

sketch14 = body.newObject("Sketcher::SketchObject", "Sketch013")
sketch14.AttachmentSupport = (doc.getObject("YZ_Plane"), [""])
sketch14.MapMode = "FlatFace"
sketch14.AttachmentOffset = App.Placement(Vector(0, 0, 65), App.Rotation())
sketch14.addGeometry([
    Part.Circle(Vector(17.6, -16.207, 0), Vector(0, 0, 1), 1.15),
    Part.Circle(Vector(26.4, -44.557, 0), Vector(0, 0, 1), 1.15),
], False)
sketch14.addConstraint([
    Sketcher.Constraint("Equal", 0, 1),
    Sketcher.Constraint("Diameter", 0, Q("2.3 mm")),
    Sketcher.Constraint("DistanceX", -1, 1, 0, 3, Q("17.6 mm")),
    Sketcher.Constraint("DistanceX", -1, 1, 1, 3, Q("26.4 mm")),
    Sketcher.Constraint("DistanceY", 1, 3, 0, 3, Q("28.35 mm")),
    Sketcher.Constraint("DistanceY", 0, 3, -1, 1, Q("16.207 mm")),
])
sketch14.setExpression("Constraints[1]", "Params.sketch14_diameter")
pocket7 = body.newObject("PartDesign::Pocket", "Pocket006")
pocket7.Profile = sketch14
pocket7.setExpression("Length", "Params.pocket7_length")

sketch15 = body.newObject("Sketcher::SketchObject", "Sketch014")
sketch15.AttachmentSupport = (doc.getObject("YZ_Plane"), [""])
sketch15.MapMode = "FlatFace"
sketch15.AttachmentOffset = App.Placement(Vector(0, 0, 65), App.Rotation())
sketch15.addGeometry([
    Part.Circle(Vector(17.6, -44.557, 0), Vector(0, 0, 1), 1.15),
    Part.Circle(Vector(26.4, -16.207, 0), Vector(0, 0, 1), 1.15),
], False)
sketch15.addConstraint([
    Sketcher.Constraint("Equal", 0, 1),
    Sketcher.Constraint("Diameter", 0, Q("2.3 mm")),
    Sketcher.Constraint("DistanceX", -1, 1, 0, 3, Q("17.6 mm")),
    Sketcher.Constraint("DistanceX", -1, 1, 1, 3, Q("26.4 mm")),
    Sketcher.Constraint("DistanceY", 0, 3, 1, 3, Q("28.35 mm")),
    Sketcher.Constraint("DistanceY", 0, 3, -1, 1, Q("44.557 mm")),
])
sketch15.setExpression("Constraints[1]", "Params.sketch15_diameter")
pocket8 = body.newObject("PartDesign::Pocket", "Pocket007")
pocket8.Profile = sketch15
pocket8.setExpression("Length", "Params.pocket8_length")

sketch16 = body.newObject("Sketcher::SketchObject", "Sketch015")
sketch16.AttachmentSupport = (doc.getObject("YZ_Plane"), [""])
sketch16.MapMode = "FlatFace"
sketch16.AttachmentOffset = App.Placement(Vector(0, 0, 65), App.Rotation())
sketch16.addGeometry([
    Part.Circle(Vector(7.825, -25.982, 0), Vector(0, 0, 1), 1.15),
    Part.Circle(Vector(7.825, -34.782, 0), Vector(0, 0, 1), 1.15),
    Part.Circle(Vector(36.175, -34.782, 0), Vector(0, 0, 1), 1.15),
    Part.Circle(Vector(36.175, -25.982, 0), Vector(0, 0, 1), 1.15),
], False)
sketch16.addConstraint([
    Sketcher.Constraint("Equal", 0, 1),
    Sketcher.Constraint("Equal", 1, 2),
    Sketcher.Constraint("Equal", 2, 3),
    Sketcher.Constraint("Horizontal", 1, 3, 2, 3),
    Sketcher.Constraint("Horizontal", 0, 3, 3, 3),
    Sketcher.Constraint("Vertical", 0, 3, 1, 3),
    Sketcher.Constraint("Vertical", 2, 3, 3, 3),
    Sketcher.Constraint("Diameter", 0, Q("2.3 mm")),
    Sketcher.Constraint("DistanceY", 1, 3, 0, 3, Q("8.8 mm")),
    Sketcher.Constraint("DistanceX", 1, 3, 2, 3, Q("28.35 mm")),
    Sketcher.Constraint("DistanceX", -1, 1, 0, 3, Q("7.825 mm")),
    Sketcher.Constraint("DistanceY", 0, 3, -1, 1, Q("25.982 mm")),
])
sketch16.setExpression("Constraints[7]", "Params.sketch16_diameter")
pocket9 = body.newObject("PartDesign::Pocket", "Pocket008")
pocket9.Profile = sketch16
pocket9.setExpression("Length", "Params.pocket9_length")

sketch17 = body.newObject("Sketcher::SketchObject", "Sketch016")
sketch17.AttachmentSupport = (doc.getObject("YZ_Plane"), [""])
sketch17.MapMode = "FlatFace"
sketch17.AttachmentOffset = App.Placement(Vector(0, 0, 65), App.Rotation())
sketch17.addGeometry(Part.Circle(Vector(22, -30.382, 0), Vector(0, 0, 1), 5.5), False)
sketch17.addConstraint([
    Sketcher.Constraint("Diameter", 0, Q("11 mm")),
    Sketcher.Constraint("DistanceX", -1, 1, 0, 3, Q("22 mm")),
    Sketcher.Constraint("DistanceY", 0, 3, -1, 1, Q("30.382 mm")),
])
sketch17.setExpression("Constraints[0]", "Params.sketch17_diameter")
pocket10 = body.newObject("PartDesign::Pocket", "Pocket009")
pocket10.Profile = sketch17
pocket10.setExpression("Length", "Params.pocket10_length")

doc.recompute()
